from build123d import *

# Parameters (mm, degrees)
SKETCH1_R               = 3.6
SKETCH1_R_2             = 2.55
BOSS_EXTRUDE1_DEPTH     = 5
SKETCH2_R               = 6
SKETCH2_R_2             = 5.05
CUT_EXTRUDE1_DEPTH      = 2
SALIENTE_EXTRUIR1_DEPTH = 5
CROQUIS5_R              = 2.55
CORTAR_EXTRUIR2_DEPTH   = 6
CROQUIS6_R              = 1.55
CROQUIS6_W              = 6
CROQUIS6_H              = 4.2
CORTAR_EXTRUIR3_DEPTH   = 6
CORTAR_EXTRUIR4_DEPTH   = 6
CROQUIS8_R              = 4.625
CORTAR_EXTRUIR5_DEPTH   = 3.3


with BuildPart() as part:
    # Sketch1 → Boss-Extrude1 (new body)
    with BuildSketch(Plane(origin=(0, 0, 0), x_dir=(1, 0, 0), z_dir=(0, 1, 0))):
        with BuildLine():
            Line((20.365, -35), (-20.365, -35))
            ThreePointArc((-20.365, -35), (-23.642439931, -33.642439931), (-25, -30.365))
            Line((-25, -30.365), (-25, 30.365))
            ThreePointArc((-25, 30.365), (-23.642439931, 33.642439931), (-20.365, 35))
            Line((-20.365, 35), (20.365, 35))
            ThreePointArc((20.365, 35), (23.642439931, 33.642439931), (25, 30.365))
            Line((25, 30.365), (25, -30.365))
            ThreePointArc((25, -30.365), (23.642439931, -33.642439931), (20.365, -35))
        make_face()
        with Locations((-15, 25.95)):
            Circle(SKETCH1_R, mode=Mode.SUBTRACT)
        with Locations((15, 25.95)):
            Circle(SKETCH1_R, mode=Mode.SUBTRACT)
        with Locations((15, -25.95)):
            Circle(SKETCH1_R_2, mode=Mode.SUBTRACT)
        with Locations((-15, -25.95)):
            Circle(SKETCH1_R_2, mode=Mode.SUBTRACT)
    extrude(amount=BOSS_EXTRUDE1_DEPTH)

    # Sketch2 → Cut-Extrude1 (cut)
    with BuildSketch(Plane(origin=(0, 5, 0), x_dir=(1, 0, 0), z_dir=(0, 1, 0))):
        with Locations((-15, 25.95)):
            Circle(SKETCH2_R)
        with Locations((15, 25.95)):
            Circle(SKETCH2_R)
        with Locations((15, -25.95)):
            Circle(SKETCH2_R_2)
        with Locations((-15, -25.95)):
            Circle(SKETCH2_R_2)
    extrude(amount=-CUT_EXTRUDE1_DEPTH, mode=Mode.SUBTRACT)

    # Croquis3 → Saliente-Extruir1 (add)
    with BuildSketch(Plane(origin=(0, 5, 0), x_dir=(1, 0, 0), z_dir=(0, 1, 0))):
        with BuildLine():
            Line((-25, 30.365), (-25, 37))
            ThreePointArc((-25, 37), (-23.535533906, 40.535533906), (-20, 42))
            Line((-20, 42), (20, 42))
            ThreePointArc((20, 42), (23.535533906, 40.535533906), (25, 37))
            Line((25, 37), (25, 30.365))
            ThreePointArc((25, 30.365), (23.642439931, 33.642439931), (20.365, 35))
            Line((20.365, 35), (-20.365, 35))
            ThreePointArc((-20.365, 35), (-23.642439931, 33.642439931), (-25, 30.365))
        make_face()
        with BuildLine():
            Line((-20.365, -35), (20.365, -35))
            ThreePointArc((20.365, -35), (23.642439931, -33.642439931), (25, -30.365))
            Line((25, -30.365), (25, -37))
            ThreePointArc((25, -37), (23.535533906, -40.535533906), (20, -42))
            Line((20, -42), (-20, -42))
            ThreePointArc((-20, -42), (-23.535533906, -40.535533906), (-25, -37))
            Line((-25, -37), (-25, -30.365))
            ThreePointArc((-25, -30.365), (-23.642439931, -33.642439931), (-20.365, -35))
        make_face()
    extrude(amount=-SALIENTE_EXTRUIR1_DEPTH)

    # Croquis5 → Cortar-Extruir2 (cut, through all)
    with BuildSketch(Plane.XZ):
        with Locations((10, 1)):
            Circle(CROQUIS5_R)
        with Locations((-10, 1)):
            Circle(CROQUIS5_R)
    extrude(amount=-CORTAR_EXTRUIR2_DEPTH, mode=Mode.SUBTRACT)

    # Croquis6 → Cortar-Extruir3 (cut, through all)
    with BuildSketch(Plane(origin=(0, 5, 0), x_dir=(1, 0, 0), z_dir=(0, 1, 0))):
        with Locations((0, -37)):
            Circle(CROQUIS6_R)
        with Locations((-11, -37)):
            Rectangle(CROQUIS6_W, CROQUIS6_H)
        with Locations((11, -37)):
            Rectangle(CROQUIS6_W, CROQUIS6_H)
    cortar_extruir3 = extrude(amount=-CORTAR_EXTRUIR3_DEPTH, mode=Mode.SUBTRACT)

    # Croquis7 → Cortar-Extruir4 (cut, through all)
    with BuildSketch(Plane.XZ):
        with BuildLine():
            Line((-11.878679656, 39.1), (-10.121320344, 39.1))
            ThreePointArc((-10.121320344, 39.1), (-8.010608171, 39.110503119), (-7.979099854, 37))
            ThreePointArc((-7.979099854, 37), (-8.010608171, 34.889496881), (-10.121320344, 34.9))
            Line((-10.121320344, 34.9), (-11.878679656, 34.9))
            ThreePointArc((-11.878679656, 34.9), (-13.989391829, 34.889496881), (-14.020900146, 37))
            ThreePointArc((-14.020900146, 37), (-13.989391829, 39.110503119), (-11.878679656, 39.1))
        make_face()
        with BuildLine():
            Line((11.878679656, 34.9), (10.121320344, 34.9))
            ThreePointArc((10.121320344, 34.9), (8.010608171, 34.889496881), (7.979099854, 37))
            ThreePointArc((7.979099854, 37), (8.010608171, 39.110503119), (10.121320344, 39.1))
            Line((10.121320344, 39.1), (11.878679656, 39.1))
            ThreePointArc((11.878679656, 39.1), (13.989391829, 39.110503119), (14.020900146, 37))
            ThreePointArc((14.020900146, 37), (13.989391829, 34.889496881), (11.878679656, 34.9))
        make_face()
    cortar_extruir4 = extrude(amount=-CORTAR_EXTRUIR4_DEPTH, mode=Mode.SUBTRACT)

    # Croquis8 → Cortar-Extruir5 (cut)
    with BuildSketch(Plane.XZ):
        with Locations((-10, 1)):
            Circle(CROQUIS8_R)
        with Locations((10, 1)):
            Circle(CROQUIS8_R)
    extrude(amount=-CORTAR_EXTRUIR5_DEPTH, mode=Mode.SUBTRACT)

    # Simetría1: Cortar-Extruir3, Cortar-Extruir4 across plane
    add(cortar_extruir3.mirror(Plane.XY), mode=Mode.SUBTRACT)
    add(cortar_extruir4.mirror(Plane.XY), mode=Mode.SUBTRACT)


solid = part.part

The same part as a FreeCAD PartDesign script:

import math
import FreeCAD as App
import Part
import Sketcher
from FreeCAD import Vector

doc = App.newDocument("Part")
body = doc.addObject("PartDesign::Body", "Body")

# Sketch on XZ plane
sketch1 = body.newObject("Sketcher::SketchObject", "Sketch")
sketch1.AttachmentSupport = (doc.getObject("XZ_Plane"), [""])
sketch1.MapMode = "FlatFace"
sketch1.addGeometry([
    Part.LineSegment(Vector(-20.4, 35, 0), Vector(20.4, 35, 0)),  # 0
    Part.ArcOfCircle(Part.Circle(Vector(20.4, 30.4, 0), Vector(0, 0, 1), 4.6), math.radians(0), math.radians(90)),  # 1
    Part.LineSegment(Vector(25, 30.4, 0), Vector(25, -30.4, 0)),  # 2
    Part.ArcOfCircle(Part.Circle(Vector(20.4, -30.4, 0), Vector(0, 0, 1), 4.6), math.radians(-90), math.radians(0)),  # 3
    Part.LineSegment(Vector(20.4, -35, 0), Vector(-20.4, -35, 0)),  # 4
    Part.ArcOfCircle(Part.Circle(Vector(-20.4, -30.4, 0), Vector(0, 0, 1), 4.6), math.radians(180), math.radians(270)),  # 5
    Part.LineSegment(Vector(-25, -30.4, 0), Vector(-25, 30.4, 0)),  # 6
    Part.ArcOfCircle(Part.Circle(Vector(-20.4, 30.4, 0), Vector(0, 0, 1), 4.6), math.radians(90), math.radians(180)),  # 7
    Part.Circle(Vector(15, 25.9, 0), Vector(0, 0, 1), 2.5),  # 8
    Part.Circle(Vector(-15, 25.9, 0), Vector(0, 0, 1), 2.5),  # 9
    Part.Circle(Vector(15, -25.9, 0), Vector(0, 0, 1), 3.6),  # 10
    Part.Circle(Vector(-15, -25.9, 0), Vector(0, 0, 1), 3.6),  # 11
], False)
sketch1.addConstraint([
    Sketcher.Constraint("Tangent", 0, 2, 1, 2),
    Sketcher.Constraint("Tangent", 1, 1, 2, 1),
    Sketcher.Constraint("Tangent", 2, 2, 3, 2),
    Sketcher.Constraint("Tangent", 3, 1, 4, 1),
    Sketcher.Constraint("Tangent", 4, 2, 5, 2),
    Sketcher.Constraint("Tangent", 5, 1, 6, 1),
    Sketcher.Constraint("Tangent", 6, 2, 7, 2),
    Sketcher.Constraint("Tangent", 7, 1, 0, 1),
    Sketcher.Constraint("Horizontal", 0),
    Sketcher.Constraint("Vertical", 2),
    Sketcher.Constraint("Horizontal", 4),
    Sketcher.Constraint("Vertical", 6),
    Sketcher.Constraint("Equal", 1, 3),
    Sketcher.Constraint("Equal", 3, 5),
    Sketcher.Constraint("Equal", 5, 7),
    Sketcher.Constraint("Equal", 8, 9),
    Sketcher.Constraint("Equal", 10, 11),
    Sketcher.Constraint("Symmetric", 1, 3, 5, 3, -1, 1),
    Sketcher.Constraint("Symmetric", 9, 3, 10, 3, -1, 1),
    Sketcher.Constraint("Symmetric", 8, 3, 11, 3, -1, 1),
    Sketcher.Constraint("Symmetric", 8, 3, 9, 3, -2),
    Sketcher.Constraint("Diameter", 8, 5.1),
    Sketcher.Constraint("Diameter", 10, 7.2),
    Sketcher.Constraint("DistanceX", -1, 1, 8, 3, 15.0),
    Sketcher.Constraint("DistanceY", -1, 1, 0, 2, 35.0),
    Sketcher.Constraint("DistanceX", -1, 1, 1, 1, 25.0),
    Sketcher.Constraint("Radius", 1, 4.635),
    Sketcher.Constraint("DistanceY", 10, 3, 8, 3, 51.9),
])
pad1 = body.newObject("PartDesign::Pad", "Pad")
pad1.Profile = sketch1
pad1.Length = 5
pad1.Reversed = True

# Sketch on XZ plane
sketch2 = body.newObject("Sketcher::SketchObject", "Sketch001")
sketch2.AttachmentSupport = (doc.getObject("XZ_Plane"), [""])
sketch2.MapMode = "FlatFace"
sketch2.AttachmentOffset = App.Placement(Vector(0, 0, -5), App.Rotation())
sketch2.addGeometry([
    Part.Circle(Vector(-15, -26, 0), Vector(0, 0, 1), 6),
    Part.Circle(Vector(15, -26, 0), Vector(0, 0, 1), 6),
    Part.Circle(Vector(15, 26, 0), Vector(0, 0, 1), 5),
    Part.Circle(Vector(-15, 26, 0), Vector(0, 0, 1), 5),
], False)
sketch2.addConstraint([
    Sketcher.Constraint("Equal", 0, 1),
    Sketcher.Constraint("Equal", 2, 3),
    Sketcher.Constraint("Symmetric", 0, 3, 2, 3, -1, 1),
    Sketcher.Constraint("Symmetric", 1, 3, 3, 3, -1, 1),
    Sketcher.Constraint("Symmetric", 0, 3, 1, 3, -2),
    Sketcher.Constraint("Diameter", 0, 12.0),
    Sketcher.Constraint("Diameter", 2, 10.1),
    Sketcher.Constraint("DistanceX", 0, 3, -1, 1, 15.0),
    Sketcher.Constraint("DistanceY", 1, 3, 2, 3, 51.9),
])
pocket1 = body.newObject("PartDesign::Pocket", "Pocket")
pocket1.Profile = sketch2
pocket1.Length = 2
pocket1.Reversed = True

# Sketch on XZ plane
sketch3 = body.newObject("Sketcher::SketchObject", "Sketch002")
sketch3.AttachmentSupport = (doc.getObject("XZ_Plane"), [""])
sketch3.MapMode = "FlatFace"
sketch3.AttachmentOffset = App.Placement(Vector(0, 0, -5), App.Rotation())
sketch3.addGeometry([
    Part.LineSegment(Vector(-25, -37, 0), Vector(-25, -30.4, 0)),  # 0
    Part.ArcOfCircle(Part.Circle(Vector(-20.4, -30.4, 0), Vector(0, 0, 1), 4.6), math.radians(180), math.radians(270)),  # 1
    Part.LineSegment(Vector(-20.4, -35, 0), Vector(20.4, -35, 0)),  # 2
    Part.ArcOfCircle(Part.Circle(Vector(20.4, -30.4, 0), Vector(0, 0, 1), 4.6), math.radians(-90), math.radians(0)),  # 3
    Part.LineSegment(Vector(25, -30.4, 0), Vector(25, -37, 0)),  # 4
    Part.ArcOfCircle(Part.Circle(Vector(20, -37, 0), Vector(0, 0, 1), 5), math.radians(-90), math.radians(0)),  # 5
    Part.LineSegment(Vector(20, -42, 0), Vector(-20, -42, 0)),  # 6
    Part.ArcOfCircle(Part.Circle(Vector(-20, -37, 0), Vector(0, 0, 1), 5), math.radians(180), math.radians(270)),  # 7
    Part.LineSegment(Vector(20.4, 35, 0), Vector(-20.4, 35, 0)),  # 8
    Part.ArcOfCircle(Part.Circle(Vector(-20.4, 30.4, 0), Vector(0, 0, 1), 4.6), math.radians(90), math.radians(180)),  # 9
    Part.LineSegment(Vector(-25, 30.4, 0), Vector(-25, 37, 0)),  # 10
    Part.ArcOfCircle(Part.Circle(Vector(-20, 37, 0), Vector(0, 0, 1), 5), math.radians(90), math.radians(180)),  # 11
    Part.LineSegment(Vector(-20, 42, 0), Vector(20, 42, 0)),  # 12
    Part.ArcOfCircle(Part.Circle(Vector(20, 37, 0), Vector(0, 0, 1), 5), math.radians(0), math.radians(90)),  # 13
    Part.LineSegment(Vector(25, 37, 0), Vector(25, 30.4, 0)),  # 14
    Part.ArcOfCircle(Part.Circle(Vector(20.4, 30.4, 0), Vector(0, 0, 1), 4.6), math.radians(0), math.radians(90)),  # 15
], False)
sketch3.addConstraint([
    Sketcher.Constraint("Tangent", 0, 2, 1, 1),
    Sketcher.Constraint("Tangent", 1, 2, 2, 1),
    Sketcher.Constraint("Tangent", 2, 2, 3, 1),
    Sketcher.Constraint("Tangent", 3, 2, 4, 1),
    Sketcher.Constraint("Tangent", 4, 2, 5, 2),
    Sketcher.Constraint("Tangent", 5, 1, 6, 1),
    Sketcher.Constraint("Tangent", 6, 2, 7, 2),
    Sketcher.Constraint("Tangent", 7, 1, 0, 1),
    Sketcher.Constraint("Tangent", 8, 2, 9, 1),
    Sketcher.Constraint("Tangent", 9, 2, 10, 1),
    Sketcher.Constraint("Tangent", 10, 2, 11, 2),
    Sketcher.Constraint("Tangent", 11, 1, 12, 1),
    Sketcher.Constraint("Tangent", 12, 2, 13, 2),
    Sketcher.Constraint("Tangent", 13, 1, 14, 1),
    Sketcher.Constraint("Tangent", 14, 2, 15, 1),
    Sketcher.Constraint("Tangent", 15, 2, 8, 1),
    Sketcher.Constraint("Vertical", 0),
    Sketcher.Constraint("Horizontal", 2),
    Sketcher.Constraint("Vertical", 4),
    Sketcher.Constraint("Horizontal", 6),
    Sketcher.Constraint("Horizontal", 8),
    Sketcher.Constraint("Vertical", 10),
    Sketcher.Constraint("Horizontal", 12),
    Sketcher.Constraint("Vertical", 14),
    Sketcher.Constraint("Equal", 1, 3),
    Sketcher.Constraint("Equal", 5, 7),
    Sketcher.Constraint("Equal", 3, 9),
    Sketcher.Constraint("Equal", 7, 11),
    Sketcher.Constraint("Equal", 11, 13),
    Sketcher.Constraint("Equal", 9, 15),
    Sketcher.Constraint("Symmetric", 3, 3, 9, 3, -1, 1),
    Sketcher.Constraint("Symmetric", 7, 3, 13, 3, -1, 1),
    Sketcher.Constraint("Vertical", 1, 3, 9, 3),
    Sketcher.Constraint("Radius", 5, 5.0),
    Sketcher.Constraint("DistanceX", 6, 2, 6, 1, 40.0),
    Sketcher.Constraint("DistanceY", 5, 3, -1, 1, 37.0),
    Sketcher.Constraint("DistanceY", 1, 2, -1, 1, 35.0),
    Sketcher.Constraint("Radius", 1, 4.635),
])
pad2 = body.newObject("PartDesign::Pad", "Pad001")
pad2.Profile = sketch3
pad2.Length = 5

# Sketch on XZ plane
sketch4 = body.newObject("Sketcher::SketchObject", "Sketch003")
sketch4.AttachmentSupport = (doc.getObject("XZ_Plane"), [""])
sketch4.MapMode = "FlatFace"
sketch4.addGeometry([
    Part.Circle(Vector(10, 1, 0), Vector(0, 0, 1), 2.5),
    Part.Circle(Vector(-10, 1, 0), Vector(0, 0, 1), 2.5),
], False)
sketch4.addConstraint([
    Sketcher.Constraint("Equal", 0, 1),
    Sketcher.Constraint("Symmetric", 0, 3, 1, 3, -2),
    Sketcher.Constraint("Diameter", 0, 5.1),
    Sketcher.Constraint("DistanceX", -1, 1, 0, 3, 10.0),
    Sketcher.Constraint("DistanceY", -1, 1, 0, 3, 1.0),
])
pocket2 = body.newObject("PartDesign::Pocket", "Pocket001")
pocket2.Profile = sketch4
pocket2.Type = "ThroughAll"

# Sketch on XZ plane
sketch5 = body.newObject("Sketcher::SketchObject", "Sketch004")
sketch5.AttachmentSupport = (doc.getObject("XZ_Plane"), [""])
sketch5.MapMode = "FlatFace"
sketch5.AttachmentOffset = App.Placement(Vector(0, 0, -5), App.Rotation())
sketch5.addGeometry([
    Part.Circle(Vector(0, 37, 0), Vector(0, 0, 1), 1.6),  # 0
    Part.LineSegment(Vector(-14, 34.9, 0), Vector(-14, 39.1, 0)),  # 1
    Part.LineSegment(Vector(-14, 39.1, 0), Vector(-8, 39.1, 0)),  # 2
    Part.LineSegment(Vector(-8, 39.1, 0), Vector(-8, 34.9, 0)),  # 3
    Part.LineSegment(Vector(-8, 34.9, 0), Vector(-14, 34.9, 0)),  # 4
    Part.LineSegment(Vector(8, 34.9, 0), Vector(8, 39.1, 0)),  # 5
    Part.LineSegment(Vector(8, 39.1, 0), Vector(14, 39.1, 0)),  # 6
    Part.LineSegment(Vector(14, 39.1, 0), Vector(14, 34.9, 0)),  # 7
    Part.LineSegment(Vector(14, 34.9, 0), Vector(8, 34.9, 0)),  # 8
], False)
sketch5.addConstraint([
    Sketcher.Constraint("Coincident", 1, 2, 2, 1),
    Sketcher.Constraint("Coincident", 2, 2, 3, 1),
    Sketcher.Constraint("Coincident", 3, 2, 4, 1),
    Sketcher.Constraint("Coincident", 4, 2, 1, 1),
    Sketcher.Constraint("Coincident", 5, 2, 6, 1),
    Sketcher.Constraint("Coincident", 6, 2, 7, 1),
    Sketcher.Constraint("Coincident", 7, 2, 8, 1),
    Sketcher.Constraint("Coincident", 8, 2, 5, 1),
    Sketcher.Constraint("Vertical", 1),
    Sketcher.Constraint("Horizontal", 2),
    Sketcher.Constraint("Vertical", 3),
    Sketcher.Constraint("Horizontal", 4),
    Sketcher.Constraint("Vertical", 5),
    Sketcher.Constraint("Horizontal", 6),
    Sketcher.Constraint("Vertical", 7),
    Sketcher.Constraint("Horizontal", 8),
    Sketcher.Constraint("Symmetric", 2, 2, 5, 2, -2),
    Sketcher.Constraint("Symmetric", 4, 2, 7, 2, -2),
    Sketcher.Constraint("PointOnObject", 0, 3, -2),
    Sketcher.Constraint("Diameter", 0, 3.1),
    Sketcher.Constraint("DistanceX", 2, 1, 2, 2, 6.0),
    Sketcher.Constraint("DistanceY", 1, 1, 1, 2, 4.2),
    Sketcher.Constraint("DistanceY", -1, 1, 0, 3, 37.0),
    Sketcher.Constraint("DistanceX", 1, 2, -1, 1, 14.0),
    Sketcher.Constraint("DistanceY", -1, 1, 1, 2, 39.1),
])
pocket3 = body.newObject("PartDesign::Pocket", "Pocket002")
pocket3.Profile = sketch5
pocket3.Type = "ThroughAll"
pocket3.Reversed = True

# Sketch on XZ plane
sketch6 = body.newObject("Sketcher::SketchObject", "Sketch005")
sketch6.AttachmentSupport = (doc.getObject("XZ_Plane"), [""])
sketch6.MapMode = "FlatFace"
sketch6.addGeometry([
    Part.LineSegment(Vector(-10.1, 39.1, 0), Vector(-11.9, 39.1, 0)),  # 0
    Part.ArcOfCircle(Part.Circle(Vector(-12.9, 38, 0), Vector(0, 0, 1), 1.5), math.radians(45), math.radians(224)),  # 1
    Part.ArcOfCircle(Part.Circle(Vector(-12.9, 36, 0), Vector(0, 0, 1), 1.5), math.radians(136), math.radians(315)),  # 2
    Part.LineSegment(Vector(-11.9, 34.9, 0), Vector(-10.1, 34.9, 0)),  # 3
    Part.ArcOfCircle(Part.Circle(Vector(-9.1, 36, 0), Vector(0, 0, 1), 1.5), math.radians(-135), math.radians(44)),  # 4
    Part.ArcOfCircle(Part.Circle(Vector(-9.1, 38, 0), Vector(0, 0, 1), 1.5), math.radians(-44), math.radians(135)),  # 5
    Part.LineSegment(Vector(10.1, 34.9, 0), Vector(11.9, 34.9, 0)),  # 6
    Part.ArcOfCircle(Part.Circle(Vector(12.9, 36, 0), Vector(0, 0, 1), 1.5), math.radians(-135), math.radians(44)),  # 7
    Part.ArcOfCircle(Part.Circle(Vector(12.9, 38, 0), Vector(0, 0, 1), 1.5), math.radians(-44), math.radians(135)),  # 8
    Part.LineSegment(Vector(11.9, 39.1, 0), Vector(10.1, 39.1, 0)),  # 9
    Part.ArcOfCircle(Part.Circle(Vector(9.1, 38, 0), Vector(0, 0, 1), 1.5), math.radians(45), math.radians(224)),  # 10
    Part.ArcOfCircle(Part.Circle(Vector(9.1, 36, 0), Vector(0, 0, 1), 1.5), math.radians(136), math.radians(315)),  # 11
], False)
sketch6.addConstraint([
    Sketcher.Constraint("Coincident", 0, 2, 1, 1),
    Sketcher.Constraint("Coincident", 1, 2, 2, 1),
    Sketcher.Constraint("Coincident", 2, 2, 3, 1),
    Sketcher.Constraint("Coincident", 3, 2, 4, 1),
    Sketcher.Constraint("Coincident", 4, 2, 5, 1),
    Sketcher.Constraint("Coincident", 5, 2, 0, 1),
    Sketcher.Constraint("Coincident", 6, 2, 7, 1),
    Sketcher.Constraint("Coincident", 7, 2, 8, 1),
    Sketcher.Constraint("Coincident", 8, 2, 9, 1),
    Sketcher.Constraint("Coincident", 9, 2, 10, 1),
    Sketcher.Constraint("Coincident", 10, 2, 11, 1),
    Sketcher.Constraint("Coincident", 11, 2, 6, 1),
    Sketcher.Constraint("Horizontal", 0),
    Sketcher.Constraint("Horizontal", 3),
    Sketcher.Constraint("Horizontal", 6),
    Sketcher.Constraint("Horizontal", 9),
    Sketcher.Constraint("Equal", 1, 2),
    Sketcher.Constraint("Equal", 2, 4),
    Sketcher.Constraint("Equal", 4, 5),
    Sketcher.Constraint("Equal", 5, 7),
    Sketcher.Constraint("Equal", 7, 8),
    Sketcher.Constraint("Equal", 8, 10),
    Sketcher.Constraint("Equal", 10, 11),
    Sketcher.Constraint("Symmetric", 2, 3, 7, 3, -2),
    Sketcher.Constraint("Symmetric", 1, 3, 8, 3, -2),
    Sketcher.Constraint("Symmetric", 5, 3, 10, 3, -2),
    Sketcher.Constraint("Symmetric", 4, 3, 11, 3, -2),
    Sketcher.Constraint("Horizontal", 2, 3, 4, 3),
    Sketcher.Constraint("Horizontal", 1, 3, 5, 3),
    Sketcher.Constraint("Horizontal", 1, 2, 4, 2),
    Sketcher.Constraint("Horizontal", 3, 2, 6, 2),
    Sketcher.Constraint("Horizontal", 5, 2, 8, 2),
    Sketcher.Constraint("Vertical", 1, 3, 2, 3),
    Sketcher.Constraint("Vertical", 0, 2, 2, 2),
    Sketcher.Constraint("Radius", 1, 1.5),
    Sketcher.Constraint("DistanceY", -1, 1, 1, 2, 37.0),
    Sketcher.Constraint("DistanceX", 4, 3, 7, 3, 22.0),
    Sketcher.Constraint("DistanceY", -1, 1, 0, 2, 39.1),
    Sketcher.Constraint("DistanceX", 0, 2, 0, 1, 1.757359),
    Sketcher.Constraint("DistanceX", 1, 2, -1, 1, 14.0209),
])
pocket4 = body.newObject("PartDesign::Pocket", "Pocket003")
pocket4.Profile = sketch6
pocket4.Type = "ThroughAll"

# Sketch on XZ plane
sketch7 = body.newObject("Sketcher::SketchObject", "Sketch006")
sketch7.AttachmentSupport = (doc.getObject("XZ_Plane"), [""])
sketch7.MapMode = "FlatFace"
sketch7.addGeometry([
    Part.Circle(Vector(-10, 1, 0), Vector(0, 0, 1), 4.6),
    Part.Circle(Vector(10, 1, 0), Vector(0, 0, 1), 4.6),
], False)
sketch7.addConstraint([
    Sketcher.Constraint("Equal", 0, 1),
    Sketcher.Constraint("Symmetric", 0, 3, 1, 3, -2),
    Sketcher.Constraint("Diameter", 0, 9.25),
    Sketcher.Constraint("DistanceX", 0, 3, -1, 1, 10.0),
    Sketcher.Constraint("DistanceY", -1, 1, 0, 3, 1.0),
])
pocket5 = body.newObject("PartDesign::Pocket", "Pocket004")
pocket5.Profile = sketch7
pocket5.Length = 3.3
doc.recompute()

mirrored = body.newObject("PartDesign::Mirrored", "Mirrored")
mirrored.Originals = [pocket3, pocket4]
mirrored.MirrorPlane = (doc.getObject("XY_Plane"), [""])
body.Tip = mirrored

doc.recompute()
